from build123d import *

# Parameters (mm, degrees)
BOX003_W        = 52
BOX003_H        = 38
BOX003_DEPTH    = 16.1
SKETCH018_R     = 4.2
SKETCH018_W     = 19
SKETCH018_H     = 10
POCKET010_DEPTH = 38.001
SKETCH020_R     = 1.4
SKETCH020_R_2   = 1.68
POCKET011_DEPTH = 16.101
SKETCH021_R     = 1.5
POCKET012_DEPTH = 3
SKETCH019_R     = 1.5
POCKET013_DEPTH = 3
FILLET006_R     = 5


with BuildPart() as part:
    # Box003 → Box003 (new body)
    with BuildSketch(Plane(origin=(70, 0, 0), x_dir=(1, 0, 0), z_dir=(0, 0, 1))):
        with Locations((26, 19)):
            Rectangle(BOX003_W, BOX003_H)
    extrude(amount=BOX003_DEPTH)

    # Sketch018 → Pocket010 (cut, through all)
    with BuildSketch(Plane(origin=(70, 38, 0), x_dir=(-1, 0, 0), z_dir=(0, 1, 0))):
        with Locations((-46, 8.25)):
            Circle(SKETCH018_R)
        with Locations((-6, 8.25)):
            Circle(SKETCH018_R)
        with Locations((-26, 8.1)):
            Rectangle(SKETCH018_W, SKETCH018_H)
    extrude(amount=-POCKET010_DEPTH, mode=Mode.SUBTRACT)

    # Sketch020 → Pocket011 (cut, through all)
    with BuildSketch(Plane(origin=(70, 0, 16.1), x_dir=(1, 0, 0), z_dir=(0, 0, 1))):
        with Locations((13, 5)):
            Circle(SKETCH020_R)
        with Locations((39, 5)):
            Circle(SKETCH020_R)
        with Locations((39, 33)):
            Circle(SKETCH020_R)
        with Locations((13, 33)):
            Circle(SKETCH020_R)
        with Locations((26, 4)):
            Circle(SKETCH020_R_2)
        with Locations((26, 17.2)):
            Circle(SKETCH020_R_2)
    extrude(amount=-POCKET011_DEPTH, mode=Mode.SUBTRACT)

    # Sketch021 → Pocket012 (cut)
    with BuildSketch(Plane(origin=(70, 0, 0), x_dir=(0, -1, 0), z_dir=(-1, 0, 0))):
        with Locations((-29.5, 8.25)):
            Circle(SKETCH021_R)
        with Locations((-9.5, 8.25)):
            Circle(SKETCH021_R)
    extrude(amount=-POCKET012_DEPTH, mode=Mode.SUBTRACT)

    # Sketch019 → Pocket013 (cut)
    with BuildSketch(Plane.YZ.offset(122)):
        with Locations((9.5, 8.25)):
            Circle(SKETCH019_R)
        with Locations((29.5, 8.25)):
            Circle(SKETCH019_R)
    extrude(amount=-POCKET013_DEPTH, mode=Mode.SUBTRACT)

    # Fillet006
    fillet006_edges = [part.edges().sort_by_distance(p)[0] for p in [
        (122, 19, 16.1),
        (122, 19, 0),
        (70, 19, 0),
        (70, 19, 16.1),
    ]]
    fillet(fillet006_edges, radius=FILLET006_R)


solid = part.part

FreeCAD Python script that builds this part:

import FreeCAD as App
import Part
import Sketcher


def edges_at(feature, points):
    """Names of the edges that pass closest to the given points."""
    edges = feature.Shape.Edges
    near = lambda p: min(range(len(edges)), key=lambda i: edges[i].distToShape(Part.Vertex(*p))[0])
    return sorted({f"Edge{near(p) + 1}" for p in points})


def add_polygon(sketch, points):
    """Adds a closed chain of lines whose ends are joined by coincident constraints."""
    first, n = sketch.GeometryCount, len(points)
    for a, b in zip(points, points[1:] + points[:1]):
        sketch.addGeometry(Part.LineSegment(App.Vector(*a, 0), App.Vector(*b, 0)), False)
    for i in range(n):
        sketch.addConstraint(Sketcher.Constraint("Coincident", first + i, 2, first + (i + 1) % n, 1))

doc = App.newDocument("Part")
body = doc.addObject("PartDesign::Body", "Body")

# Sketch on XY plane
sketch1 = body.newObject("Sketcher::SketchObject", "Sketch")
sketch1.AttachmentSupport = (doc.getObject("XY_Plane"), [""])
sketch1.MapMode = "FlatFace"
add_polygon(sketch1, [(70, 38), (70, 0), (122, 0), (122, 38)])  # lines 0-3
sketch1.addConstraint([
    Sketcher.Constraint("Vertical", 0),
    Sketcher.Constraint("Horizontal", 1),
    Sketcher.Constraint("Vertical", 2),
    Sketcher.Constraint("Horizontal", 3),
    Sketcher.Constraint("PointOnObject", 0, 2, -1),
    Sketcher.Constraint("DistanceX", 1, 1, 1, 2, 52.0),
    Sketcher.Constraint("DistanceY", 0, 2, 0, 1, 38.0),
    Sketcher.Constraint("DistanceX", -1, 1, 0, 2, 70.0),
])
pad1 = body.newObject("PartDesign::Pad", "Pad")
pad1.Profile = sketch1
pad1.Length = 16.1

# Sketch on XZ plane
sketch2 = body.newObject("Sketcher::SketchObject", "Sketch001")
sketch2.AttachmentSupport = (doc.getObject("XZ_Plane"), [""])
sketch2.MapMode = "FlatFace"
sketch2.AttachmentOffset = App.Placement(App.Vector(0, 0, -38), App.Rotation())
sketch2.addGeometry(Part.Circle(App.Vector(116, 8.2, 0), App.Vector(0, 0, 1), 4.2), False)  # 0
sketch2.addGeometry(Part.Circle(App.Vector(76, 8.2, 0), App.Vector(0, 0, 1), 4.2), False)  # 1
add_polygon(sketch2, [(105.5, 13.1), (105.5, 3.1), (86.5, 3.1), (86.5, 13.1)])  # lines 2-5
sketch2.addConstraint([
    Sketcher.Constraint("Vertical", 2),
    Sketcher.Constraint("Horizontal", 3),
    Sketcher.Constraint("Vertical", 4),
    Sketcher.Constraint("Horizontal", 5),
    Sketcher.Constraint("Equal", 0, 1),
    Sketcher.Constraint("Horizontal", 0, 3, 1, 3),
    Sketcher.Constraint("Diameter", 0, 8.4),
    Sketcher.Constraint("DistanceX", 3, 2, 3, 1, 19.0),
    Sketcher.Constraint("DistanceY", 2, 2, 2, 1, 10.0),
    Sketcher.Constraint("DistanceX", -1, 1, 0, 3, 116.0),
    Sketcher.Constraint("DistanceX", -1, 1, 1, 3, 76.0),
    Sketcher.Constraint("DistanceX", -1, 1, 2, 2, 105.5),
    Sketcher.Constraint("DistanceY", -1, 1, 2, 2, 3.1),
    Sketcher.Constraint("DistanceY", -1, 1, 0, 3, 8.25),
])
pocket1 = body.newObject("PartDesign::Pocket", "Pocket")
pocket1.Profile = sketch2
pocket1.Type = "ThroughAll"
pocket1.Reversed = True

# Sketch on XY plane
sketch3 = body.newObject("Sketcher::SketchObject", "Sketch002")
sketch3.AttachmentSupport = (doc.getObject("XY_Plane"), [""])
sketch3.MapMode = "FlatFace"
sketch3.AttachmentOffset = App.Placement(App.Vector(0, 0, 16.1), App.Rotation())
sketch3.addGeometry([
    Part.Circle(App.Vector(83, 5, 0), App.Vector(0, 0, 1), 1.4),  # 0
    Part.Circle(App.Vector(109, 5, 0), App.Vector(0, 0, 1), 1.4),  # 1
    Part.Circle(App.Vector(109, 33, 0), App.Vector(0, 0, 1), 1.4),  # 2
    Part.Circle(App.Vector(83, 33, 0), App.Vector(0, 0, 1), 1.4),  # 3
    Part.Circle(App.Vector(96, 4, 0), App.Vector(0, 0, 1), 1.7),  # 4
    Part.Circle(App.Vector(96, 17.2, 0), App.Vector(0, 0, 1), 1.7),  # 5
], False)
sketch3.addConstraint([
    Sketcher.Constraint("Equal", 0, 1),
    Sketcher.Constraint("Equal", 1, 2),
    Sketcher.Constraint("Equal", 2, 3),
    Sketcher.Constraint("Equal", 4, 5),
    Sketcher.Constraint("Horizontal", 0, 3, 1, 3),
    Sketcher.Constraint("Horizontal", 2, 3, 3, 3),
    Sketcher.Constraint("Vertical", 1, 3, 2, 3),
    Sketcher.Constraint("Vertical", 0, 3, 3, 3),
    Sketcher.Constraint("Vertical", 4, 3, 5, 3),
    Sketcher.Constraint("Diameter", 0, 2.8),
    Sketcher.Constraint("Diameter", 4, 3.36),
    Sketcher.Constraint("DistanceX", -1, 1, 0, 3, 83.0),
    Sketcher.Constraint("DistanceY", -1, 1, 0, 3, 5.0),
    Sketcher.Constraint("DistanceX", -1, 1, 1, 3, 109.0),
    Sketcher.Constraint("DistanceY", -1, 1, 2, 3, 33.0),
    Sketcher.Constraint("DistanceX", -1, 1, 4, 3, 96.0),
    Sketcher.Constraint("DistanceY", -1, 1, 4, 3, 4.0),
    Sketcher.Constraint("DistanceY", -1, 1, 5, 3, 17.2),
])
pocket2 = body.newObject("PartDesign::Pocket", "Pocket001")
pocket2.Profile = sketch3
pocket2.Type = "ThroughAll"

# Sketch on YZ plane
sketch4 = body.newObject("Sketcher::SketchObject", "Sketch003")
sketch4.AttachmentSupport = (doc.getObject("YZ_Plane"), [""])
sketch4.MapMode = "FlatFace"
sketch4.AttachmentOffset = App.Placement(App.Vector(0, 0, 70), App.Rotation())
sketch4.addGeometry([
    Part.Circle(App.Vector(29.5, 8.2, 0), App.Vector(0, 0, 1), 1.5),
    Part.Circle(App.Vector(9.5, 8.2, 0), App.Vector(0, 0, 1), 1.5),
], False)
sketch4.addConstraint([
    Sketcher.Constraint("Equal", 0, 1),
    Sketcher.Constraint("Horizontal", 0, 3, 1, 3),
    Sketcher.Constraint("Diameter", 0, 3.0),
    Sketcher.Constraint("DistanceX", 1, 3, 0, 3, 20.0),
    Sketcher.Constraint("DistanceX", -1, 1, 0, 3, 29.5),
    Sketcher.Constraint("DistanceY", -1, 1, 0, 3, 8.25),
])
pocket3 = body.newObject("PartDesign::Pocket", "Pocket002")
pocket3.Profile = sketch4
pocket3.Length = 3
pocket3.Reversed = True

# Sketch on YZ plane
sketch5 = body.newObject("Sketcher::SketchObject", "Sketch004")
sketch5.AttachmentSupport = (doc.getObject("YZ_Plane"), [""])
sketch5.MapMode = "FlatFace"
sketch5.AttachmentOffset = App.Placement(App.Vector(0, 0, 122), App.Rotation())
sketch5.addGeometry([
    Part.Circle(App.Vector(9.5, 8.2, 0), App.Vector(0, 0, 1), 1.5),
    Part.Circle(App.Vector(29.5, 8.2, 0), App.Vector(0, 0, 1), 1.5),
], False)
sketch5.addConstraint([
    Sketcher.Constraint("Equal", 0, 1),
    Sketcher.Constraint("Horizontal", 0, 3, 1, 3),
    Sketcher.Constraint("Diameter", 0, 3.0),
    Sketcher.Constraint("DistanceX", 0, 3, 1, 3, 20.0),
    Sketcher.Constraint("DistanceX", -1, 1, 0, 3, 9.5),
    Sketcher.Constraint("DistanceY", -1, 1, 0, 3, 8.25),
])
pocket4 = body.newObject("PartDesign::Pocket", "Pocket003")
pocket4.Profile = sketch5
pocket4.Length = 3
doc.recompute()

fillet = body.newObject("PartDesign::Fillet", "Fillet")
fillet.Base = (pocket4, edges_at(pocket4, [
    (122, 19, 16.1),
    (122, 19, 0),
    (70, 19, 0),
    (70, 19, 16.1),
]))
fillet.Radius = 5

doc.recompute()
